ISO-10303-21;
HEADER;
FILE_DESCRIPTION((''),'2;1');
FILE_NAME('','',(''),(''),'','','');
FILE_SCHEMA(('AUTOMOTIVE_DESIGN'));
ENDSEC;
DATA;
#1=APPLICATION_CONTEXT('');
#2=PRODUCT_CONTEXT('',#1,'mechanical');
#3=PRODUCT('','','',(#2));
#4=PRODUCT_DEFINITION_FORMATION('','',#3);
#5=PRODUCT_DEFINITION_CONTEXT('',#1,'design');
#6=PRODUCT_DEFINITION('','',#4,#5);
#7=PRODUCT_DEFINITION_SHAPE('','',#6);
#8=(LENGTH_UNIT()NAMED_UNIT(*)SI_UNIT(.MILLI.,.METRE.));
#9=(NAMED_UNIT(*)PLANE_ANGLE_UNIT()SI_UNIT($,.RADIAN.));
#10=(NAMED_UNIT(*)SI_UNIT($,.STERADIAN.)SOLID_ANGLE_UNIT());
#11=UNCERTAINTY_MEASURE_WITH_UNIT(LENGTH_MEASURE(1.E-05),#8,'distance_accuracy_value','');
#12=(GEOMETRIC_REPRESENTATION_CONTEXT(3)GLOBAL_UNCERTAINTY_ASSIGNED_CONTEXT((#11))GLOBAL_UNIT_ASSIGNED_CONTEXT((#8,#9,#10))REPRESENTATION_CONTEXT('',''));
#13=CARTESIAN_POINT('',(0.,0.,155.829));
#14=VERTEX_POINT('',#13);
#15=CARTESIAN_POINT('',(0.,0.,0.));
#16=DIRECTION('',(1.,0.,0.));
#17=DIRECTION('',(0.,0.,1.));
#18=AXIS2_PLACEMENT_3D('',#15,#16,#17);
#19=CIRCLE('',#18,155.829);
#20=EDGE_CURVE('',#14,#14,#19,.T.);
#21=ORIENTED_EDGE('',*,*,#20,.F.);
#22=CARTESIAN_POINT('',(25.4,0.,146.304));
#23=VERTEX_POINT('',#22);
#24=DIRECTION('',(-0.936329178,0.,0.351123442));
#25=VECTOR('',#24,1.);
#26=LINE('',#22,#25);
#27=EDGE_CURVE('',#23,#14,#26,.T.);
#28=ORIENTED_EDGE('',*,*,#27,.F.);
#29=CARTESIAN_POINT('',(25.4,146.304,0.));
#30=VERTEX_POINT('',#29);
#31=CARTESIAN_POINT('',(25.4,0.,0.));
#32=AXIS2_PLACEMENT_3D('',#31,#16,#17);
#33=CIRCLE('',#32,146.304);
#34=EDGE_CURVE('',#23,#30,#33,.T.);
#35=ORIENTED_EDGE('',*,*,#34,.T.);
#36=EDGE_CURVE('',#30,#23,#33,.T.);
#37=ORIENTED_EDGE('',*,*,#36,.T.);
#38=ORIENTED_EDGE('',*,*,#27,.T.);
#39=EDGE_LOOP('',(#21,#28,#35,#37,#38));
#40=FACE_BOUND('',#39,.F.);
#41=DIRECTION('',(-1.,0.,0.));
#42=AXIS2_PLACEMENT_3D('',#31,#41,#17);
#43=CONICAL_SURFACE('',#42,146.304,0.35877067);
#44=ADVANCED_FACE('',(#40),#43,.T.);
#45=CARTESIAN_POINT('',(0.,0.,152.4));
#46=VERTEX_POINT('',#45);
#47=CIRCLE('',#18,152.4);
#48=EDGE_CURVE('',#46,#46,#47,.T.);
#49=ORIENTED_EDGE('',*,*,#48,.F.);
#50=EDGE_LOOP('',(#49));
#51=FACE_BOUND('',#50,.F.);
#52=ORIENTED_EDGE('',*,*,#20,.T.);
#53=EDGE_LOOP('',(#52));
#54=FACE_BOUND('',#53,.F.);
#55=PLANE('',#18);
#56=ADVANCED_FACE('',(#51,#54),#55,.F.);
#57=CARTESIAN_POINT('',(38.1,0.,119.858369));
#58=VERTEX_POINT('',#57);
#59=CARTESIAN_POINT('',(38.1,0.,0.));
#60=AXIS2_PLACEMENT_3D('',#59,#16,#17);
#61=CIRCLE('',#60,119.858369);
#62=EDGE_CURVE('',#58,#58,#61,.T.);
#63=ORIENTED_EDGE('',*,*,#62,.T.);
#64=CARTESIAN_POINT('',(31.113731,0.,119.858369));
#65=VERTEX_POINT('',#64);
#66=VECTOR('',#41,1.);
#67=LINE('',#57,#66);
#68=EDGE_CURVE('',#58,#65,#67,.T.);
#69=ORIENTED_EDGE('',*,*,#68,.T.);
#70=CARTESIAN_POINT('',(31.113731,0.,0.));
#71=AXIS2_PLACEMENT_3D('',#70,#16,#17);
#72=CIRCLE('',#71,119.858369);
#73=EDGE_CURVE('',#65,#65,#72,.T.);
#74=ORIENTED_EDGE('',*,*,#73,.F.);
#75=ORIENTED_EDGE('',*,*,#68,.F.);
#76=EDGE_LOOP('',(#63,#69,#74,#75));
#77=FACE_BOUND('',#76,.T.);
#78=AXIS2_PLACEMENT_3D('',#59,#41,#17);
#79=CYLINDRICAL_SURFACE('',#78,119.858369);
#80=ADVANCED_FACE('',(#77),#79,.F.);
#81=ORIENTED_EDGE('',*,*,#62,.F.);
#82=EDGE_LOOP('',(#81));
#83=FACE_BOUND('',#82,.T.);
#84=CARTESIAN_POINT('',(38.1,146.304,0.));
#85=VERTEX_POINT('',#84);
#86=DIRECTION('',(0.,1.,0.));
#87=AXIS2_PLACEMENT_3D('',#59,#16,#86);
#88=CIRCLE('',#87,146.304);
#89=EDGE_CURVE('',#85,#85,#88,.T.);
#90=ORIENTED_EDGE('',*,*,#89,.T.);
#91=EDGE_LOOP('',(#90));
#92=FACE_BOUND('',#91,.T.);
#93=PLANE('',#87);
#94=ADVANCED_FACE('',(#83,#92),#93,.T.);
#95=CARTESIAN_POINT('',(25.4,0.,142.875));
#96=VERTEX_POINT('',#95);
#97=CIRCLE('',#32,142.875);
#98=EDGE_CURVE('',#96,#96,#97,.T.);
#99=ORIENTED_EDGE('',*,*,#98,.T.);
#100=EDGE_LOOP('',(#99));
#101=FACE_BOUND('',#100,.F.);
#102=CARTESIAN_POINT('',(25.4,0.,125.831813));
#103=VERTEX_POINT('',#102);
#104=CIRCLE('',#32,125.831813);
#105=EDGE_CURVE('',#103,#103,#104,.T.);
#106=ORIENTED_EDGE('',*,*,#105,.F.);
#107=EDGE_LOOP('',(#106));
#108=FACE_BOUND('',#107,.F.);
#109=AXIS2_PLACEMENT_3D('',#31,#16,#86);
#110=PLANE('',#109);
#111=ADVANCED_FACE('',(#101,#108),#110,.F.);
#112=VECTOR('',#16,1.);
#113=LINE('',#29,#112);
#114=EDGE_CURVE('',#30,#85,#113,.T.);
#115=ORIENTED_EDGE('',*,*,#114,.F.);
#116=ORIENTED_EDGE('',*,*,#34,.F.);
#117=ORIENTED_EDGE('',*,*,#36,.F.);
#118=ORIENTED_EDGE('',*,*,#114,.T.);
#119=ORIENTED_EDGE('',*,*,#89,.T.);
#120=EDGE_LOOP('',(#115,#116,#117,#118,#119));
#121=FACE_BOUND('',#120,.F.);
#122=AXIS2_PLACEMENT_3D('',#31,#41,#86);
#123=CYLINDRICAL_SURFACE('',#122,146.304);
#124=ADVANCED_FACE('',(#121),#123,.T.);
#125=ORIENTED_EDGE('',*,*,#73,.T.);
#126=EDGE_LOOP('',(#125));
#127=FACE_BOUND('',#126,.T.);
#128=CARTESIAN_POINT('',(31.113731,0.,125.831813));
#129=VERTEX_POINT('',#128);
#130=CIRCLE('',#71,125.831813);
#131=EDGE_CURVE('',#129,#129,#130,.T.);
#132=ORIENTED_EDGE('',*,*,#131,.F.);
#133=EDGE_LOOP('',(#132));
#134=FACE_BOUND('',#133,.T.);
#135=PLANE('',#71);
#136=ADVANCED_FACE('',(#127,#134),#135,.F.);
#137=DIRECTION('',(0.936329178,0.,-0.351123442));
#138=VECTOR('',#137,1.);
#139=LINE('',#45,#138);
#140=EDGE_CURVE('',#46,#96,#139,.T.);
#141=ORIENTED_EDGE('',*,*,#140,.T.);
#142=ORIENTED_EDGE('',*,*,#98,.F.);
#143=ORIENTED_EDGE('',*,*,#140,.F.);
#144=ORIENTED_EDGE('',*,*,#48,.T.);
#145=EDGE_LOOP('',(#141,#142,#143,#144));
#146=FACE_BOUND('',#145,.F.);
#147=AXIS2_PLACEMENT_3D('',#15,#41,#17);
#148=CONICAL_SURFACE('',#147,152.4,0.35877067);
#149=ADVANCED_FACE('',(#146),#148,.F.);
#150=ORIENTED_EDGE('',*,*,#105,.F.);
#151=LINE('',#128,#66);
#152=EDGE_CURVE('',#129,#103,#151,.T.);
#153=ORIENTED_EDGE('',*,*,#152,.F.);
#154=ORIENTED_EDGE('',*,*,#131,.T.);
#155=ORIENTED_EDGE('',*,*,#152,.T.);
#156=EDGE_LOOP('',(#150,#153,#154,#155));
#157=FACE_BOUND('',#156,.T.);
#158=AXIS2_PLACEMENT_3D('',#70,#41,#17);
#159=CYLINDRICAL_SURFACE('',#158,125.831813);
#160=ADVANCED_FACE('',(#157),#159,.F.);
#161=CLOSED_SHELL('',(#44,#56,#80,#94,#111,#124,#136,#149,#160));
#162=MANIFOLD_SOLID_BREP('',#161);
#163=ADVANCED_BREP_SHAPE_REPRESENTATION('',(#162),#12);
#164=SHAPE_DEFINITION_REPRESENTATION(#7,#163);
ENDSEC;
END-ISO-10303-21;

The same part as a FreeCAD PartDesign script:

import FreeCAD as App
import Part
import Sketcher
from FreeCAD import Vector
Q = App.Units.Quantity

doc = App.newDocument("Part")
body = doc.addObject("PartDesign::Body", "Body")

sketch1 = doc.addObject("Sketcher::SketchObject", "Sketch")
body.addObject(sketch1)
sketch1.AttachmentSupport = (doc.XZ_Plane, [""])
sketch1.MapMode = "FlatFace"
sketch1.addGeometry([
    Part.LineSegment(Vector(0, 155.8, 0), Vector(0, 152.4, 0)),
    Part.LineSegment(Vector(0, 152.4, 0), Vector(25.4, 142.9, 0)),
    Part.LineSegment(Vector(25.4, 142.9, 0), Vector(25.4, 146.3, 0)),
    Part.LineSegment(Vector(25.4, 146.3, 0), Vector(0, 155.8, 0)),
], False)
sketch1.addConstraint([
    Sketcher.Constraint("Coincident", 0, 2, 1, 1),
    Sketcher.Constraint("Coincident", 1, 2, 2, 1),
    Sketcher.Constraint("Coincident", 2, 2, 3, 1),
    Sketcher.Constraint("Coincident", 3, 2, 0, 1),
    Sketcher.Constraint("Vertical", 0),
    Sketcher.Constraint("Vertical", 2),
    Sketcher.Constraint("PointOnObject", 0, 2, -2),
    Sketcher.Constraint("Parallel", 1, 3),
    Sketcher.Constraint("DistanceY", -1, 1, 0, 2, Q("6 in")),
    Sketcher.Constraint("DistanceX", -1, 1, 1, 2, Q("1 in")),
    Sketcher.Constraint("DistanceY", 0, 2, 0, 1, Q("0.135 in")),
    Sketcher.Constraint("DistanceY", -1, 1, 2, 2, Q("5.76 in")),
])
revolution = doc.addObject("PartDesign::Revolution", "Revolution")
body.addObject(revolution)
revolution.Profile = sketch1
revolution.ReferenceAxis = (sketch1, ["H_Axis"])
revolution.Angle = 360

sketch2 = doc.addObject("Sketcher::SketchObject", "Sketch001")
body.addObject(sketch2)
sketch2.AttachmentSupport = (doc.YZ_Plane, [""])
sketch2.MapMode = "FlatFace"
sketch2.AttachmentOffset = App.Placement(Vector(0, 0, 1 * 25.4), App.Rotation())
sketch2.addGeometry(Part.Circle(Vector(0, 0, 0), Vector(0, 0, 1), 146), False)
sketch2.addConstraint([
    Sketcher.Constraint("Coincident", 0, 3, -1, 1),
    Sketcher.Constraint("Diameter", 0, Q("11.52 in")),
])
pad1 = doc.addObject("PartDesign::Pad", "Pad")
body.addObject(pad1)
pad1.Profile = sketch2
pad1.Length = Q("0.5 in")

sketch3 = doc.addObject("Sketcher::SketchObject", "Sketch002")
body.addObject(sketch3)
sketch3.AttachmentSupport = (doc.XZ_Plane, [""])
sketch3.MapMode = "FlatFace"
sketch3.addGeometry([
    Part.LineSegment(Vector(31, 126, 0), Vector(25, 126, 0)),
    Part.LineSegment(Vector(25, 126, 0), Vector(25, 0, 0)),
    Part.LineSegment(Vector(25, 0, 0), Vector(38, 0, 0)),
    Part.LineSegment(Vector(38, 0, 0), Vector(38, 120, 0)),
    Part.LineSegment(Vector(38, 120, 0), Vector(31, 120, 0)),
    Part.LineSegment(Vector(31, 120, 0), Vector(31, 126, 0)),
], False)
sketch3.addConstraint([
    Sketcher.Constraint("Coincident", 0, 2, 1, 1),
    Sketcher.Constraint("Coincident", 1, 2, 2, 1),
    Sketcher.Constraint("Coincident", 2, 2, 3, 1),
    Sketcher.Constraint("Coincident", 3, 2, 4, 1),
    Sketcher.Constraint("Coincident", 4, 2, 5, 1),
    Sketcher.Constraint("Coincident", 5, 2, 0, 1),
    Sketcher.Constraint("Horizontal", 0),
    Sketcher.Constraint("Vertical", 1),
    Sketcher.Constraint("Horizontal", 2),
    Sketcher.Constraint("Vertical", 3),
    Sketcher.Constraint("Horizontal", 4),
    Sketcher.Constraint("Vertical", 5),
    Sketcher.Constraint("PointOnObject", 1, 2, -1),
    Sketcher.Constraint("DistanceX", 2, 1, 2, 2, Q("0.5 in")),
    Sketcher.Constraint("DistanceX", -1, 1, 0, 2, Q("1 in")),
    Sketcher.Constraint("DistanceX", 0, 2, 0, 1, Q("5.713731 mm")),
    Sketcher.Constraint("DistanceY", 3, 1, 3, 2, Q("119.858369 mm")),
    Sketcher.Constraint("DistanceY", 1, 2, 1, 1, Q("125.831813 mm")),
])
groove = doc.addObject("PartDesign::Groove", "Groove")
body.addObject(groove)
groove.Profile = sketch3
groove.ReferenceAxis = (sketch3, ["H_Axis"])
groove.Angle = 360

doc.recompute()
